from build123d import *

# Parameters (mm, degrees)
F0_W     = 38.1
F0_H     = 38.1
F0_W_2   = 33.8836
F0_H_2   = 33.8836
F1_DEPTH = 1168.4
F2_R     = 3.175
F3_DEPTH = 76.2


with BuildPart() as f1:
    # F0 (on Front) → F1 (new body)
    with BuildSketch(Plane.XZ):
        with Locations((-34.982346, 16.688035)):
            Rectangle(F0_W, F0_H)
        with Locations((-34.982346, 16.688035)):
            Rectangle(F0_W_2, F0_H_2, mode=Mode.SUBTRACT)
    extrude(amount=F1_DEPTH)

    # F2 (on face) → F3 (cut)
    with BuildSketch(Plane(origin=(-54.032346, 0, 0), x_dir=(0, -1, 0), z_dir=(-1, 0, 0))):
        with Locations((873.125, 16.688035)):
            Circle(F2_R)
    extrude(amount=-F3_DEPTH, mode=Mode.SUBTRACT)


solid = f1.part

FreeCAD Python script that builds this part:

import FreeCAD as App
import Part
import Sketcher
Q = App.Units.Quantity

doc = App.newDocument("Part")
body = doc.addObject("PartDesign::Body", "Body")

# Sketch on XZ plane
sketch1 = body.newObject("Sketcher::SketchObject", "Sketch")
sketch1.AttachmentSupport = (doc.getObject("XZ_Plane"), [""])
sketch1.MapMode = "FlatFace"
sketch1.addGeometry([
    Part.LineSegment(App.Vector(-54, 36, 0), App.Vector(-54, -2, 0)),  # 0
    Part.LineSegment(App.Vector(-54, -2, 0), App.Vector(-16, -2, 0)),  # 1
    Part.LineSegment(App.Vector(-16, -2, 0), App.Vector(-16, 36, 0)),  # 2
    Part.LineSegment(App.Vector(-16, 36, 0), App.Vector(-54, 36, 0)),  # 3
    Part.LineSegment(App.Vector(-18, 0, 0), App.Vector(-52, 0, 0)),  # 4
    Part.LineSegment(App.Vector(-52, 0, 0), App.Vector(-52, 34, 0)),  # 5
    Part.LineSegment(App.Vector(-52, 34, 0), App.Vector(-18, 34, 0)),  # 6
    Part.LineSegment(App.Vector(-18, 34, 0), App.Vector(-18, 0, 0)),  # 7
], False)
sketch1.addConstraint([
    Sketcher.Constraint("Coincident", 0, 2, 1, 1),
    Sketcher.Constraint("Coincident", 1, 2, 2, 1),
    Sketcher.Constraint("Coincident", 2, 2, 3, 1),
    Sketcher.Constraint("Coincident", 3, 2, 0, 1),
    Sketcher.Constraint("Coincident", 4, 2, 5, 1),
    Sketcher.Constraint("Coincident", 5, 2, 6, 1),
    Sketcher.Constraint("Coincident", 6, 2, 7, 1),
    Sketcher.Constraint("Coincident", 7, 2, 4, 1),
    Sketcher.Constraint("Vertical", 0),
    Sketcher.Constraint("Horizontal", 1),
    Sketcher.Constraint("Vertical", 2),
    Sketcher.Constraint("Horizontal", 3),
    Sketcher.Constraint("Horizontal", 4),
    Sketcher.Constraint("Vertical", 5),
    Sketcher.Constraint("Horizontal", 6),
    Sketcher.Constraint("Vertical", 7),
    Sketcher.Constraint("Equal", 3, 0),
    Sketcher.Constraint("Equal", 6, 5),
    Sketcher.Constraint("DistanceX", 1, 1, 1, 2, Q("1.5 in")),
    Sketcher.Constraint("DistanceX", 4, 2, 4, 1, Q("1.334 in")),
    Sketcher.Constraint("DistanceX", 0, 2, 4, 2, Q("0.083 in")),
    Sketcher.Constraint("DistanceY", 0, 2, 4, 2, Q("0.083 in")),
    Sketcher.Constraint("DistanceX", 0, 2, -1, 1, Q("54.032346 mm")),
    Sketcher.Constraint("DistanceY", 0, 2, -1, 1, Q("2.361965 mm")),
])
pad1 = body.newObject("PartDesign::Pad", "Pad")
pad1.Profile = sketch1
pad1.Length = Q("46 in")

# Sketch on YZ plane
sketch2 = body.newObject("Sketcher::SketchObject", "Sketch001")
sketch2.AttachmentSupport = (doc.getObject("YZ_Plane"), [""])
sketch2.MapMode = "FlatFace"
sketch2.AttachmentOffset = App.Placement(App.Vector(0, 0, -54.032346), App.Rotation())
sketch2.addGeometry(Part.Circle(App.Vector(-873.1, 16.7, 0), App.Vector(0, 0, 1), 3.2), False)
sketch2.addConstraint([
    Sketcher.Constraint("Diameter", 0, Q("0.25 in")),
    Sketcher.Constraint("DistanceX", 0, 3, -1, 1, Q("34.375 in")),
    Sketcher.Constraint("DistanceY", -1, 1, 0, 3, Q("16.688035 mm")),
])
pocket1 = body.newObject("PartDesign::Pocket", "Pocket")
pocket1.Profile = sketch2
pocket1.Length = Q("3 in")
pocket1.Reversed = True

doc.recompute()
